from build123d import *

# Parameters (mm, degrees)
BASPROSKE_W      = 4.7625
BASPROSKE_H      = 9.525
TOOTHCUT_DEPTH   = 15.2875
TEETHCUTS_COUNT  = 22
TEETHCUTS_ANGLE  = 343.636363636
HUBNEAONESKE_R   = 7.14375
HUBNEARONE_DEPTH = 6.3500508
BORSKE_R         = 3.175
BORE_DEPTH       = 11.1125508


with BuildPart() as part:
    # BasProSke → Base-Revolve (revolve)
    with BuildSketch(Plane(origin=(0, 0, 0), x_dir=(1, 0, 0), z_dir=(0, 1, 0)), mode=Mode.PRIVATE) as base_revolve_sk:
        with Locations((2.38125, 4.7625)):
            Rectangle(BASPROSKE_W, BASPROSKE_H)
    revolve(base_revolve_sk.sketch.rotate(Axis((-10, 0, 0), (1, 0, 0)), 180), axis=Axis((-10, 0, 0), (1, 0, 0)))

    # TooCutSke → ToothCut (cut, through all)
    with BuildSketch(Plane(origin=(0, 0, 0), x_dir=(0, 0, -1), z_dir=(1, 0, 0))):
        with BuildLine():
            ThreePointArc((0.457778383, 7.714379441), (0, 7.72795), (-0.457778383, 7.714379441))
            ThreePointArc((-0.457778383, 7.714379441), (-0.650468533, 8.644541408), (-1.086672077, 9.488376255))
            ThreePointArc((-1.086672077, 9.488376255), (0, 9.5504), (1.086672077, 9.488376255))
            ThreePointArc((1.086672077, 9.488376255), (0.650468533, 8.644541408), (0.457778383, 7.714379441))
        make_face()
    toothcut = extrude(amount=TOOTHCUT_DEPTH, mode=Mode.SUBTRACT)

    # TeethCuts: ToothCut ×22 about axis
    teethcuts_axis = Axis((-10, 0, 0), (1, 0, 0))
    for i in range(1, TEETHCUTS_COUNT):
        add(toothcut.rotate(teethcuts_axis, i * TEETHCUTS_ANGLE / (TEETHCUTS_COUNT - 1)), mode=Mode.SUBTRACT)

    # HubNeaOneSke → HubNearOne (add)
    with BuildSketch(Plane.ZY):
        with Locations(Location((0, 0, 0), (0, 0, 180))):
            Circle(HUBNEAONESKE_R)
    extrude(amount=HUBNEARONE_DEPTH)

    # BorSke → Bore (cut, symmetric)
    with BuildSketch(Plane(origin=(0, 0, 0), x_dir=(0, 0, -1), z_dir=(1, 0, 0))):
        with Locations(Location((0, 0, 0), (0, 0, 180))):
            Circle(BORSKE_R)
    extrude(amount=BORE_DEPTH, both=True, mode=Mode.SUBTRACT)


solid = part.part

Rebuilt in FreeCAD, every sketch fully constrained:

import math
import FreeCAD as App
import Part
import Sketcher

V = App.Vector
Q = App.Units.Quantity


def add_polygon(sketch, points):
    """Adds a closed chain of lines whose ends are joined by coincident constraints."""
    first, n = sketch.GeometryCount, len(points)
    for a, b in zip(points, points[1:] + points[:1]):
        sketch.addGeometry(Part.LineSegment(App.Vector(*a, 0), App.Vector(*b, 0)), False)
    for i in range(n):
        sketch.addConstraint(Sketcher.Constraint("Coincident", first + i, 2, first + (i + 1) % n, 1))

doc = App.newDocument("Part")
body = doc.addObject("PartDesign::Body", "Body")

# Sketch on XZ plane
sketch1 = doc.addObject("Sketcher::SketchObject", "Sketch")
body.addObject(sketch1)
sketch1.AttachmentSupport = (doc.XZ_Plane, [""])
sketch1.MapMode = "FlatFace"
add_polygon(sketch1, [(0, -9.5), (0, 0), (4.8, 0), (4.8, -9.5)])  # lines 0-3
sketch1.addConstraint(Sketcher.Constraint("Vertical", 0))
sketch1.addConstraint(Sketcher.Constraint("Horizontal", 1))
sketch1.addConstraint(Sketcher.Constraint("Vertical", 2))
sketch1.addConstraint(Sketcher.Constraint("Horizontal", 3))
sketch1.addConstraint(Sketcher.Constraint("Coincident", 0, 2, -1, 1))
sketch1.addConstraint(Sketcher.Constraint("DistanceX", 1, 1, 1, 2, Q("0.1875 in")))
sketch1.addConstraint(Sketcher.Constraint("DistanceY", 0, 1, 0, 2, Q("0.375 in")))
revolution = doc.addObject("PartDesign::Revolution", "Revolution")
body.addObject(revolution)
revolution.Profile = sketch1
revolution.ReferenceAxis = (sketch1, ["H_Axis"])
revolution.Angle = 360

# Sketch on YZ plane
sketch2 = doc.addObject("Sketcher::SketchObject", "Sketch001")
body.addObject(sketch2)
sketch2.AttachmentSupport = (doc.YZ_Plane, [""])
sketch2.MapMode = "FlatFace"
sketch2.addGeometry(Part.ArcOfCircle(Part.Circle(V(0, 0, 0), V(0, 0, 1), 7.7), math.radians(-3.4), math.radians(3.4)), False)
sketch2.addGeometry(Part.ArcOfCircle(Part.Circle(V(7.5, -3.9, 0), V(0, 0, 1), 3.5), math.radians(55), math.radians(86)), False)
sketch2.addGeometry(Part.ArcOfCircle(Part.Circle(V(0, 0, 0), V(0, 0, 1), 9.6), math.radians(-6.53), math.radians(6.53)), False)
sketch2.addGeometry(Part.ArcOfCircle(Part.Circle(V(7.5, 3.9, 0), V(0, 0, 1), 3.5), math.radians(-86), math.radians(-55)), False)
sketch2.addConstraint(Sketcher.Constraint("Coincident", 0, 1, 1, 2))
sketch2.addConstraint(Sketcher.Constraint("Coincident", 1, 1, 2, 1))
sketch2.addConstraint(Sketcher.Constraint("Coincident", 2, 2, 3, 2))
sketch2.addConstraint(Sketcher.Constraint("Coincident", 3, 1, 0, 2))
sketch2.addConstraint(Sketcher.Constraint("Coincident", 0, 3, -1, 1))
sketch2.addConstraint(Sketcher.Constraint("Coincident", 2, 3, -1, 1))
sketch2.addConstraint(Sketcher.Constraint("Equal", 1, 3))
sketch2.addConstraint(Sketcher.Constraint("Symmetric", 1, 3, 3, 3, -1))
sketch2.addConstraint(Sketcher.Constraint("Radius", 2, Q("0.376 in")))
sketch2.addConstraint(Sketcher.Constraint("Radius", 1, Q("0.1375 in")))
sketch2.addConstraint(Sketcher.Constraint("Radius", 0, Q("7.72795 mm")))
sketch2.addConstraint(Sketcher.Constraint("DistanceY", 1, 3, -1, 1, Q("3.942242 mm")))
sketch2.addConstraint(Sketcher.Constraint("DistanceY", 0, 1, -1, 1, Q("0.457778 mm")))
pocket1 = doc.addObject("PartDesign::Pocket", "Pocket")
body.addObject(pocket1)
pocket1.Profile = sketch2
pocket1.Type = "ThroughAll"
pocket1.Reversed = True
doc.recompute()

polarpattern = doc.addObject("PartDesign::PolarPattern", "PolarPattern")
body.addObject(polarpattern)
polarpattern.Originals = [pocket1]
polarpattern.Axis = (doc.X_Axis, [""])
polarpattern.Angle = 360
polarpattern.Occurrences = 22
body.Tip = polarpattern

# Sketch on YZ plane
sketch3 = doc.addObject("Sketcher::SketchObject", "Sketch002")
body.addObject(sketch3)
sketch3.AttachmentSupport = (doc.YZ_Plane, [""])
sketch3.MapMode = "FlatFace"
sketch3.addGeometry(Part.Circle(V(0, 0, 0), V(0, 0, 1), 7), False)
sketch3.addConstraint(Sketcher.Constraint("Coincident", 0, 3, -1, 1))
sketch3.addConstraint(Sketcher.Constraint("Diameter", 0, Q("0.5625 in")))
pad1 = doc.addObject("PartDesign::Pad", "Pad")
body.addObject(pad1)
pad1.Profile = sketch3
pad1.Length = 6.350051
pad1.Reversed = True

# Sketch on YZ plane
sketch4 = doc.addObject("Sketcher::SketchObject", "Sketch003")
body.addObject(sketch4)
sketch4.AttachmentSupport = (doc.YZ_Plane, [""])
sketch4.MapMode = "FlatFace"
sketch4.addGeometry(Part.Circle(V(0, 0, 0), V(0, 0, 1), 3.2), False)
sketch4.addConstraint(Sketcher.Constraint("Coincident", 0, 3, -1, 1))
sketch4.addConstraint(Sketcher.Constraint("Diameter", 0, Q("0.25 in")))
pocket2 = doc.addObject("PartDesign::Pocket", "Pocket001")
body.addObject(pocket2)
pocket2.Profile = sketch4
pocket2.Length = 22.225102
pocket2.Midplane = True

doc.recompute()
